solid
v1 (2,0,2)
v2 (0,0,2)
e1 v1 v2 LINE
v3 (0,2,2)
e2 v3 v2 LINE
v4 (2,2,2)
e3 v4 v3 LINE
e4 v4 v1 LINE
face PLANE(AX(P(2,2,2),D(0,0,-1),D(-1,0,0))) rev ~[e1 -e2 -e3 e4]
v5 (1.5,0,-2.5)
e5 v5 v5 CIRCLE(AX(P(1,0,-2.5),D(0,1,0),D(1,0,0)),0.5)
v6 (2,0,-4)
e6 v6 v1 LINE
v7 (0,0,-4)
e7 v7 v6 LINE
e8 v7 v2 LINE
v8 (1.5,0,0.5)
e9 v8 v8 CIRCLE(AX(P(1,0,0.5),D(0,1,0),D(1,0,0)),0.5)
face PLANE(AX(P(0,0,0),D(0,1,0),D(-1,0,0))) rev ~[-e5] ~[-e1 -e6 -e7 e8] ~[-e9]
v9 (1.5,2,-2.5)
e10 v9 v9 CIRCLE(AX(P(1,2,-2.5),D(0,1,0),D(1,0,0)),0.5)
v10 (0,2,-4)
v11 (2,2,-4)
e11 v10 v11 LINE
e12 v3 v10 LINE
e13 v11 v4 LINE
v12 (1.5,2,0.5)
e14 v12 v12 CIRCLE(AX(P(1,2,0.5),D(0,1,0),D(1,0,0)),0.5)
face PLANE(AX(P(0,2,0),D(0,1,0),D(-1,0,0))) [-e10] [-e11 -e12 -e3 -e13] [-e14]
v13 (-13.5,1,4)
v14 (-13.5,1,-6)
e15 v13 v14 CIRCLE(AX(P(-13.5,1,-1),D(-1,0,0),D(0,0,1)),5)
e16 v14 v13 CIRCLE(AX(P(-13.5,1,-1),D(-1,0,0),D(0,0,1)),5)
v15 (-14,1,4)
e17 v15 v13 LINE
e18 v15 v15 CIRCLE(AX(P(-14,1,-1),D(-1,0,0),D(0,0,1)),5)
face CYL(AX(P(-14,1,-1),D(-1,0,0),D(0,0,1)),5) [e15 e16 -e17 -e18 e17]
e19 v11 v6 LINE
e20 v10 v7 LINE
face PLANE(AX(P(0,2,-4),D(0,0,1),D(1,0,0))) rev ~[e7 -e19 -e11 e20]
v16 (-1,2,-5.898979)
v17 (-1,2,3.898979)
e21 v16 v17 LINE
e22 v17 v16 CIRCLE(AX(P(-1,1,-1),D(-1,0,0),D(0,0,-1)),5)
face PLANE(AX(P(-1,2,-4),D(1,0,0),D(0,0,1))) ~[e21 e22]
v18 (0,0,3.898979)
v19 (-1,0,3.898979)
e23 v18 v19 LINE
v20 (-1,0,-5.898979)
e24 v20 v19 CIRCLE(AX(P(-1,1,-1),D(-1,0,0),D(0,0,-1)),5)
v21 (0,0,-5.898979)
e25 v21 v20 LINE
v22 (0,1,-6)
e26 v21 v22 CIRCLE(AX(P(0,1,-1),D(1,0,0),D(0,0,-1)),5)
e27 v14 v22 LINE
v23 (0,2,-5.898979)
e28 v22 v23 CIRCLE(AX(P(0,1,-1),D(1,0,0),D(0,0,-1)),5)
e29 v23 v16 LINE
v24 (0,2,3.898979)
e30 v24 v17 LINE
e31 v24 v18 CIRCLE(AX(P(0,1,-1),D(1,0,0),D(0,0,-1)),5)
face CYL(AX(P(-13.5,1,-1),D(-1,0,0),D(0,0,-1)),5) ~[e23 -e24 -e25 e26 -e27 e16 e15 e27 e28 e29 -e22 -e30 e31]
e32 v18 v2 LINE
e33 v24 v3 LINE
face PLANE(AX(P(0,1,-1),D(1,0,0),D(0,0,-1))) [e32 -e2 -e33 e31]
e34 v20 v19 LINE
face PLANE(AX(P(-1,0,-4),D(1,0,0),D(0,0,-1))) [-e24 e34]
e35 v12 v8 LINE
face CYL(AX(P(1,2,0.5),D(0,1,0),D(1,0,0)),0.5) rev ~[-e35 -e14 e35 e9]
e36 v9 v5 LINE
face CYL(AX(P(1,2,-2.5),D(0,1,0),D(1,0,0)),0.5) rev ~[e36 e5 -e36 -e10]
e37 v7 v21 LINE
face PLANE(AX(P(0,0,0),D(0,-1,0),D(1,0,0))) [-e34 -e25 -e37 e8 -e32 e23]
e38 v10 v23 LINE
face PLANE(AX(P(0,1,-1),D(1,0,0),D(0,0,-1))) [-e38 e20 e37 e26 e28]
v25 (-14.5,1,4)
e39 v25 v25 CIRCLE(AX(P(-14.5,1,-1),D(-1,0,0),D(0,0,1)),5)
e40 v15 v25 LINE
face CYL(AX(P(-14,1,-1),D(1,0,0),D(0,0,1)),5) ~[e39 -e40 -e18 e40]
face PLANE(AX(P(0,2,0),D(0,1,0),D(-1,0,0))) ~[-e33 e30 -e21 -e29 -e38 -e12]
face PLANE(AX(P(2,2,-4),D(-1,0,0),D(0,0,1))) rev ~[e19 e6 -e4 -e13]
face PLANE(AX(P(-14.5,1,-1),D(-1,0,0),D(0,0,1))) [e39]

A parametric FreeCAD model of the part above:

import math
import FreeCAD as App
import Part
import Sketcher
Q = App.Units.Quantity

doc = App.newDocument("Part")
body = doc.addObject("PartDesign::Body", "Body")

# Sketch on XZ plane
sketch1 = doc.addObject("Sketcher::SketchObject", "Sketch")
body.addObject(sketch1)
sketch1.AttachmentSupport = (doc.XZ_Plane, [""])
sketch1.MapMode = "FlatFace"
sketch1.addGeometry(Part.LineSegment(App.Vector(-20, 0, 0), App.Vector(0, 0, 0)), False)
sketch1.addGeometry(Part.LineSegment(App.Vector(0, 0, 0), App.Vector(0, -2, 0)), False)
sketch1.addGeometry(Part.LineSegment(App.Vector(0, -2, 0), App.Vector(-20, -2, 0)), False)
sketch1.addGeometry(Part.LineSegment(App.Vector(-20, -2, 0), App.Vector(-20, 0, 0)), False)
sketch1.addConstraint(Sketcher.Constraint("Coincident", 0, 2, 1, 1))
sketch1.addConstraint(Sketcher.Constraint("Coincident", 1, 2, 2, 1))
sketch1.addConstraint(Sketcher.Constraint("Coincident", 2, 2, 3, 1))
sketch1.addConstraint(Sketcher.Constraint("Coincident", 3, 2, 0, 1))
sketch1.addConstraint(Sketcher.Constraint("Horizontal", 0))
sketch1.addConstraint(Sketcher.Constraint("Vertical", 1))
sketch1.addConstraint(Sketcher.Constraint("Horizontal", 2))
sketch1.addConstraint(Sketcher.Constraint("Vertical", 3))
sketch1.addConstraint(Sketcher.Constraint("Coincident", 0, 2, -1, 1))
sketch1.addConstraint(Sketcher.Constraint("DistanceX", 0, 1, 0, 2, Q("20 mm")))
sketch1.addConstraint(Sketcher.Constraint("DistanceY", 1, 2, 1, 1, Q("2 mm")))
pad1 = doc.addObject("PartDesign::Pad", "Pad")
body.addObject(pad1)
pad1.Profile = sketch1
pad1.Length = 2
pad1.Reversed = True

# Sketch on XZ plane
sketch2 = doc.addObject("Sketcher::SketchObject", "Sketch001")
body.addObject(sketch2)
sketch2.AttachmentSupport = (doc.XZ_Plane, [""])
sketch2.MapMode = "FlatFace"
sketch2.AttachmentOffset = App.Placement(App.Vector(0, 0, -2), App.Rotation())
sketch2.addGeometry(Part.LineSegment(App.Vector(0, -4, 0), App.Vector(0, 2, 0)), False)
sketch2.addGeometry(Part.LineSegment(App.Vector(0, 2, 0), App.Vector(2, 2, 0)), False)
sketch2.addGeometry(Part.LineSegment(App.Vector(2, 2, 0), App.Vector(2, -4, 0)), False)
sketch2.addGeometry(Part.LineSegment(App.Vector(2, -4, 0), App.Vector(0, -4, 0)), False)
sketch2.addConstraint(Sketcher.Constraint("Coincident", 0, 2, 1, 1))
sketch2.addConstraint(Sketcher.Constraint("Coincident", 1, 2, 2, 1))
sketch2.addConstraint(Sketcher.Constraint("Coincident", 2, 2, 3, 1))
sketch2.addConstraint(Sketcher.Constraint("Coincident", 3, 2, 0, 1))
sketch2.addConstraint(Sketcher.Constraint("Vertical", 0))
sketch2.addConstraint(Sketcher.Constraint("Horizontal", 1))
sketch2.addConstraint(Sketcher.Constraint("Vertical", 2))
sketch2.addConstraint(Sketcher.Constraint("Horizontal", 3))
sketch2.addConstraint(Sketcher.Constraint("PointOnObject", 0, 2, -2))
sketch2.addConstraint(Sketcher.Constraint("DistanceX", 1, 1, 1, 2, Q("2 mm")))
sketch2.addConstraint(Sketcher.Constraint("DistanceY", 0, 1, 0, 2, Q("6 mm")))
sketch2.addConstraint(Sketcher.Constraint("DistanceY", -1, 1, 0, 2, Q("2 mm")))
pad2 = doc.addObject("PartDesign::Pad", "Pad001")
body.addObject(pad2)
pad2.Profile = sketch2
pad2.Length = 2

# Sketch on XZ plane
sketch3 = doc.addObject("Sketcher::SketchObject", "Sketch002")
body.addObject(sketch3)
sketch3.AttachmentSupport = (doc.XZ_Plane, [""])
sketch3.MapMode = "FlatFace"
sketch3.AttachmentOffset = App.Placement(App.Vector(0, 0, -2), App.Rotation())
sketch3.addGeometry(Part.Circle(App.Vector(1, 0.5, 0), App.Vector(0, 0, 1), 0.5), False)
sketch3.addGeometry(Part.Circle(App.Vector(1, -2.5, 0), App.Vector(0, 0, 1), 0.5), False)
sketch3.addConstraint(Sketcher.Constraint("Equal", 0, 1))
sketch3.addConstraint(Sketcher.Constraint("Vertical", 0, 3, 1, 3))
sketch3.addConstraint(Sketcher.Constraint("Diameter", 0, Q("1 mm")))
sketch3.addConstraint(Sketcher.Constraint("DistanceX", -1, 1, 0, 3, Q("1 mm")))
sketch3.addConstraint(Sketcher.Constraint("DistanceY", 1, 3, 0, 3, Q("3 mm")))
sketch3.addConstraint(Sketcher.Constraint("DistanceY", -1, 1, 0, 3, Q("0.5 mm")))
pocket1 = doc.addObject("PartDesign::Pocket", "Pocket")
body.addObject(pocket1)
pocket1.Profile = sketch3
pocket1.Length = 2
pocket1.Reversed = True

# Sketch on YZ plane
sketch4 = doc.addObject("Sketcher::SketchObject", "Sketch003")
body.addObject(sketch4)
sketch4.AttachmentSupport = (doc.YZ_Plane, [""])
sketch4.MapMode = "FlatFace"
sketch4.addGeometry(Part.LineSegment(App.Vector(2, -1, 0), App.Vector(2, -2, 0)), False)
sketch4.addGeometry(Part.ArcOfCircle(Part.Circle(App.Vector(1, -1, 0), App.Vector(0, 0, 1), 1.4), math.radians(-135), math.radians(-45)), False)
sketch4.addGeometry(Part.LineSegment(App.Vector(0, -2, 0), App.Vector(0, -1, 0)), False)
sketch4.addGeometry(Part.ArcOfCircle(Part.Circle(App.Vector(1, -1, 0), App.Vector(0, 0, 1), 1), math.radians(180), math.radians(360)), False)
sketch4.addGeometry(Part.LineSegment(App.Vector(2, 0, 0), App.Vector(2, -1, 0)), False)
sketch4.addGeometry(Part.ArcOfCircle(Part.Circle(App.Vector(1, -1, 0), App.Vector(0, 0, 1), 1), math.radians(0), math.radians(180)), False)
sketch4.addGeometry(Part.LineSegment(App.Vector(0, -1, 0), App.Vector(0, 0, 0)), False)
sketch4.addGeometry(Part.ArcOfCircle(Part.Circle(App.Vector(1, -1, 0), App.Vector(0, 0, 1), 1.4), math.radians(45), math.radians(135)), False)
sketch4.addConstraint(Sketcher.Constraint("Coincident", 0, 2, 1, 2))
sketch4.addConstraint(Sketcher.Constraint("Coincident", 1, 1, 2, 1))
sketch4.addConstraint(Sketcher.Constraint("Tangent", 2, 2, 3, 1))
sketch4.addConstraint(Sketcher.Constraint("Tangent", 3, 2, 0, 1))
sketch4.addConstraint(Sketcher.Constraint("Tangent", 4, 2, 5, 1))
sketch4.addConstraint(Sketcher.Constraint("Tangent", 5, 2, 6, 1))
sketch4.addConstraint(Sketcher.Constraint("Coincident", 6, 2, 7, 2))
sketch4.addConstraint(Sketcher.Constraint("Coincident", 7, 1, 4, 1))
sketch4.addConstraint(Sketcher.Constraint("Vertical", 0))
sketch4.addConstraint(Sketcher.Constraint("Vertical", 2))
sketch4.addConstraint(Sketcher.Constraint("Vertical", 4))
sketch4.addConstraint(Sketcher.Constraint("Vertical", 6))
sketch4.addConstraint(Sketcher.Constraint("Coincident", 6, 2, -1, 1))
sketch4.addConstraint(Sketcher.Constraint("Coincident", 3, 3, 1, 3))
sketch4.addConstraint(Sketcher.Constraint("Coincident", 5, 3, 1, 3))
sketch4.addConstraint(Sketcher.Constraint("Coincident", 7, 3, 1, 3))
sketch4.addConstraint(Sketcher.Constraint("Equal", 3, 5))
sketch4.addConstraint(Sketcher.Constraint("Equal", 1, 7))
sketch4.addConstraint(Sketcher.Constraint("Radius", 3, Q("1 mm")))
sketch4.addConstraint(Sketcher.Constraint("DistanceY", 0, 2, 0, 1, Q("1 mm")))
pocket2 = doc.addObject("PartDesign::Pocket", "Pocket001")
body.addObject(pocket2)
pocket2.Profile = sketch4
pocket2.Length = 100

# Sketch on YZ plane
sketch5 = doc.addObject("Sketcher::SketchObject", "Sketch004")
body.addObject(sketch5)
sketch5.AttachmentSupport = (doc.YZ_Plane, [""])
sketch5.MapMode = "FlatFace"
sketch5.AttachmentOffset = App.Placement(App.Vector(0, 0, -14), App.Rotation())
sketch5.addGeometry(Part.Circle(App.Vector(1, -1, 0), App.Vector(0, 0, 1), 5), False)
sketch5.addConstraint(Sketcher.Constraint("Diameter", 0, Q("10 mm")))
sketch5.addConstraint(Sketcher.Constraint("DistanceX", -1, 1, 0, 3, Q("1 mm")))
sketch5.addConstraint(Sketcher.Constraint("DistanceY", 0, 3, -1, 1, Q("1 mm")))
pad3 = doc.addObject("PartDesign::Pad", "Pad002")
body.addObject(pad3)
pad3.Profile = sketch5
pad3.Length = 1
pad3.Midplane = True

# Sketch on YZ plane
sketch6 = doc.addObject("Sketcher::SketchObject", "Sketch005")
body.addObject(sketch6)
sketch6.AttachmentSupport = (doc.YZ_Plane, [""])
sketch6.MapMode = "FlatFace"
sketch6.AttachmentOffset = App.Placement(App.Vector(0, 0, -20), App.Rotation())
sketch6.addGeometry(Part.Circle(App.Vector(1, -1, 0), App.Vector(0, 0, 1), 5), False)
sketch6.addConstraint(Sketcher.Constraint("Diameter", 0, Q("10 mm")))
sketch6.addConstraint(Sketcher.Constraint("DistanceX", -1, 1, 0, 3, Q("1 mm")))
sketch6.addConstraint(Sketcher.Constraint("DistanceY", 0, 3, -1, 1, Q("1 mm")))
pocket3 = doc.addObject("PartDesign::Pocket", "Pocket002")
body.addObject(pocket3)
pocket3.Profile = sketch6
pocket3.Length = 5.5
pocket3.Reversed = True

# Sketch on YZ plane
sketch7 = doc.addObject("Sketcher::SketchObject", "Sketch006")
body.addObject(sketch7)
sketch7.AttachmentSupport = (doc.YZ_Plane, [""])
sketch7.MapMode = "FlatFace"
sketch7.AttachmentOffset = App.Placement(App.Vector(0, 0, -13.5), App.Rotation())
sketch7.addGeometry(Part.Circle(App.Vector(1, -1, 0), App.Vector(0, 0, 1), 5), False)
sketch7.addConstraint(Sketcher.Constraint("Diameter", 0, Q("10 mm")))
sketch7.addConstraint(Sketcher.Constraint("DistanceX", -1, 1, 0, 3, Q("1 mm")))
sketch7.addConstraint(Sketcher.Constraint("DistanceY", 0, 3, -1, 1, Q("1 mm")))
pad4 = doc.addObject("PartDesign::Pad", "Pad003")
body.addObject(pad4)
pad4.Profile = sketch7
pad4.Length = 13.5

# Sketch on XZ plane
sketch8 = doc.addObject("Sketcher::SketchObject", "Sketch007")
body.addObject(sketch8)
sketch8.AttachmentSupport = (doc.XZ_Plane, [""])
sketch8.MapMode = "FlatFace"
sketch8.addGeometry(Part.LineSegment(App.Vector(2, -6.7, 0), App.Vector(2, 5.3, 0)), False)
sketch8.addGeometry(Part.LineSegment(App.Vector(2, 5.3, 0), App.Vector(-1, 5.3, 0)), False)
sketch8.addGeometry(Part.LineSegment(App.Vector(-1, 5.3, 0), App.Vector(-1, -6.7, 0)), False)
sketch8.addGeometry(Part.LineSegment(App.Vector(-1, -6.7, 0), App.Vector(2, -6.7, 0)), False)
sketch8.addConstraint(Sketcher.Constraint("Coincident", 0, 2, 1, 1))
sketch8.addConstraint(Sketcher.Constraint("Coincident", 1, 2, 2, 1))
sketch8.addConstraint(Sketcher.Constraint("Coincident", 2, 2, 3, 1))
sketch8.addConstraint(Sketcher.Constraint("Coincident", 3, 2, 0, 1))
sketch8.addConstraint(Sketcher.Constraint("Vertical", 0))
sketch8.addConstraint(Sketcher.Constraint("Horizontal", 1))
sketch8.addConstraint(Sketcher.Constraint("Vertical", 2))
sketch8.addConstraint(Sketcher.Constraint("Horizontal", 3))
sketch8.addConstraint(Sketcher.Constraint("DistanceX", 1, 2, 1, 1, Q("3 mm")))
sketch8.addConstraint(Sketcher.Constraint("DistanceX", -1, 1, 0, 2, Q("2 mm")))
sketch8.addConstraint(Sketcher.Constraint("DistanceY", 0, 1, 0, 2, Q("12.0174 mm")))
sketch8.addConstraint(Sketcher.Constraint("DistanceY", 2, 2, -1, 1, Q("6.739 mm")))
pocket4 = doc.addObject("PartDesign::Pocket", "Pocket003")
body.addObject(pocket4)
pocket4.Profile = sketch8
pocket4.Length = 13.5
pocket4.Reversed = True
doc.recompute()

datumplane = doc.addObject("PartDesign::Plane", "DatumPlane")
body.addObject(datumplane)
datumplane.AttachmentSupport = (doc.XZ_Plane, [""])
datumplane.MapMode = "FlatFace"
datumplane.AttachmentOffset = App.Placement(App.Vector(0, 0, -1), App.Rotation())
mirrored = doc.addObject("PartDesign::Mirrored", "Mirrored")
body.addObject(mirrored)
mirrored.Originals = [pocket4]
mirrored.MirrorPlane = (datumplane, [""])
body.Tip = mirrored

doc.recompute()
